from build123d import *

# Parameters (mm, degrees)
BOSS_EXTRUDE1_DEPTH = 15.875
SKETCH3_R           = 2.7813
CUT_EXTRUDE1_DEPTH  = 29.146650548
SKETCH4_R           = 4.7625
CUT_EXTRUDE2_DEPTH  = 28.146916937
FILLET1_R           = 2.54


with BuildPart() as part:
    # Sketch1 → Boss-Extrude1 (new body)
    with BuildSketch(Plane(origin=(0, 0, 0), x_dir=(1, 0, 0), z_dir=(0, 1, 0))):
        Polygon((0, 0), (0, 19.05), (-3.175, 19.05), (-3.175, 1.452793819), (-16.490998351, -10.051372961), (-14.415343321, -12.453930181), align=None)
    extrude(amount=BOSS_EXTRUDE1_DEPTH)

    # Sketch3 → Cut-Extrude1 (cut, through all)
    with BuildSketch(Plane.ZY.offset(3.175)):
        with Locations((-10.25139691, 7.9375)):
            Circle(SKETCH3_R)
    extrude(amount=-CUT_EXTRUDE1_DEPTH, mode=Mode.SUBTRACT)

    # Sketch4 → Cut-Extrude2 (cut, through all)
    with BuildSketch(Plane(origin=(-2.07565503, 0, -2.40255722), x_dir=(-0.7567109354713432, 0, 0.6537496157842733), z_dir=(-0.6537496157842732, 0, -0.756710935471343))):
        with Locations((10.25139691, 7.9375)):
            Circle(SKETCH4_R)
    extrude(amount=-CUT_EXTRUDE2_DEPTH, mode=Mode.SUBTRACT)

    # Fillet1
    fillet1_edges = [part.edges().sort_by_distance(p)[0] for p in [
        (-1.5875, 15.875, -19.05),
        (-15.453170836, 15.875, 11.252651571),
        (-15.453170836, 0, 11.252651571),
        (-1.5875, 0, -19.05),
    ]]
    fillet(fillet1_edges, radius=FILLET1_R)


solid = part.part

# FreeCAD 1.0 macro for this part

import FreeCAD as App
import Part
import Sketcher

V = App.Vector
Q = App.Units.Quantity


def edges_at(feature, points):
    """Names of the edges that pass closest to the given points."""
    edges = feature.Shape.Edges
    near = lambda p: min(range(len(edges)), key=lambda i: edges[i].distToShape(Part.Vertex(*p))[0])
    return sorted({f"Edge{near(p) + 1}" for p in points})


def add_polygon(sketch, points):
    """Adds a closed chain of lines whose ends are joined by coincident constraints."""
    first, n = sketch.GeometryCount, len(points)
    for a, b in zip(points, points[1:] + points[:1]):
        sketch.addGeometry(Part.LineSegment(App.Vector(*a, 0), App.Vector(*b, 0)), False)
    for i in range(n):
        sketch.addConstraint(Sketcher.Constraint("Coincident", first + i, 2, first + (i + 1) % n, 1))

doc = App.newDocument("Part")
params = doc.addObject("Spreadsheet::Sheet", "Params")
for row, (alias, value) in enumerate([
    ("sketch1_height", "0.75 in"),
    ("sketch1_length", "0.75 in"),
    ("sketch1_width", "0.125 in"),
    ("sketch1_length2", "0.125 in"),
    ("pad1_length", "0.625 in"),
    ("sketch2_diameter", "0.219 in"),
    ("sketch3_diameter", "0.375 in"),
    ("fillet_radius", "0.1 in"),
], start=1):
    params.set(f"A{row}", alias)
    params.set(f"B{row}", "=" + value)
    params.setAlias(f"B{row}", alias)

body = doc.addObject("PartDesign::Body", "Body")

# Sketch on XZ plane
sketch1 = body.newObject("Sketcher::SketchObject", "Sketch")
sketch1.AttachmentSupport = (doc.getObject("XZ_Plane"), [""])
sketch1.MapMode = "FlatFace"
add_polygon(sketch1, [(0, 0), (0, -19.1), (-3.2, -19.1), (-3.2, -1.5), (-16.5, 10.1), (-14.4, 12.5)])  # lines 0-5
sketch1.addConstraint([
    Sketcher.Constraint("Vertical", 0),
    Sketcher.Constraint("Horizontal", 1),
    Sketcher.Constraint("Vertical", 2),
    Sketcher.Constraint("Coincident", 5, 2, -1, 1),
    Sketcher.Constraint("Perpendicular", 3, 4),
    Sketcher.Constraint("Perpendicular", 4, 5),
    Sketcher.Constraint("DistanceY", 0, 2, 0, 1, Q("0.75 in")),
    Sketcher.Constraint("Distance", 5, Q("0.75 in")),
    Sketcher.Constraint("DistanceX", 1, 2, 1, 1, Q("0.125 in")),
    Sketcher.Constraint("Distance", 4, Q("0.125 in")),
    Sketcher.Constraint("DistanceX", 3, 2, -1, 1, 16.490998),
])
sketch1.setExpression("Constraints[12]", "Params.sketch1_height")
sketch1.setExpression("Constraints[13]", "Params.sketch1_length")
sketch1.setExpression("Constraints[14]", "Params.sketch1_width")
sketch1.setExpression("Constraints[15]", "Params.sketch1_length2")
pad1 = body.newObject("PartDesign::Pad", "Pad")
pad1.Profile = sketch1
pad1.setExpression("Length", "Params.pad1_length")
pad1.Reversed = True

# Sketch on YZ plane
sketch2 = body.newObject("Sketcher::SketchObject", "Sketch001")
sketch2.AttachmentSupport = (doc.getObject("YZ_Plane"), [""])
sketch2.MapMode = "FlatFace"
sketch2.AttachmentOffset = App.Placement(V(0, 0, -0.125 * 25.4), App.Rotation())
sketch2.addGeometry(Part.Circle(V(7.9, -10.3, 0), V(0, 0, 1), 2.8), False)
sketch2.addConstraint([
    Sketcher.Constraint("Diameter", 0, Q("0.219 in")),
    Sketcher.Constraint("DistanceX", -1, 1, 0, 3, Q("0.3125 in")),
    Sketcher.Constraint("DistanceY", 0, 3, -1, 1, 10.251397),
])
sketch2.setExpression("Constraints[0]", "Params.sketch2_diameter")
pocket1 = body.newObject("PartDesign::Pocket", "Pocket")
pocket1.Profile = sketch2
pocket1.Type = "ThroughAll"
pocket1.Reversed = True

# Sketch on an angled plane
sketch3 = body.newObject("Sketcher::SketchObject", "Sketch002")
sketch3.Placement = App.Placement(V(-2.075655, 0, -2.402557), App.Rotation(V(-0.756710935, 0, 0.653749616), V(0, 1, 0), V(-0.653749616, 0, -0.756710935), "ZXY"))
sketch3.addGeometry(Part.Circle(V(10.3, 7.9, 0), V(0, 0, 1), 4.8), False)
sketch3.addConstraint([
    Sketcher.Constraint("Diameter", 0, Q("0.375 in")),
    Sketcher.Constraint("DistanceY", -1, 1, 0, 3, Q("0.3125 in")),
    Sketcher.Constraint("DistanceX", -1, 1, 0, 3, 10.251397),
])
sketch3.setExpression("Constraints[0]", "Params.sketch3_diameter")
pocket2 = body.newObject("PartDesign::Pocket", "Pocket001")
pocket2.Profile = sketch3
pocket2.Type = "ThroughAll"
doc.recompute()

fillet = body.newObject("PartDesign::Fillet", "Fillet")
fillet.Base = (pocket2, edges_at(pocket2, [
    (-1.587, 15.875, -19.05),
    (-15.453, 15.875, 11.253),
    (-15.453, 0, 11.253),
    (-1.587, 0, -19.05),
]))
fillet.setExpression("Radius", "Params.fillet_radius")

doc.recompute()
